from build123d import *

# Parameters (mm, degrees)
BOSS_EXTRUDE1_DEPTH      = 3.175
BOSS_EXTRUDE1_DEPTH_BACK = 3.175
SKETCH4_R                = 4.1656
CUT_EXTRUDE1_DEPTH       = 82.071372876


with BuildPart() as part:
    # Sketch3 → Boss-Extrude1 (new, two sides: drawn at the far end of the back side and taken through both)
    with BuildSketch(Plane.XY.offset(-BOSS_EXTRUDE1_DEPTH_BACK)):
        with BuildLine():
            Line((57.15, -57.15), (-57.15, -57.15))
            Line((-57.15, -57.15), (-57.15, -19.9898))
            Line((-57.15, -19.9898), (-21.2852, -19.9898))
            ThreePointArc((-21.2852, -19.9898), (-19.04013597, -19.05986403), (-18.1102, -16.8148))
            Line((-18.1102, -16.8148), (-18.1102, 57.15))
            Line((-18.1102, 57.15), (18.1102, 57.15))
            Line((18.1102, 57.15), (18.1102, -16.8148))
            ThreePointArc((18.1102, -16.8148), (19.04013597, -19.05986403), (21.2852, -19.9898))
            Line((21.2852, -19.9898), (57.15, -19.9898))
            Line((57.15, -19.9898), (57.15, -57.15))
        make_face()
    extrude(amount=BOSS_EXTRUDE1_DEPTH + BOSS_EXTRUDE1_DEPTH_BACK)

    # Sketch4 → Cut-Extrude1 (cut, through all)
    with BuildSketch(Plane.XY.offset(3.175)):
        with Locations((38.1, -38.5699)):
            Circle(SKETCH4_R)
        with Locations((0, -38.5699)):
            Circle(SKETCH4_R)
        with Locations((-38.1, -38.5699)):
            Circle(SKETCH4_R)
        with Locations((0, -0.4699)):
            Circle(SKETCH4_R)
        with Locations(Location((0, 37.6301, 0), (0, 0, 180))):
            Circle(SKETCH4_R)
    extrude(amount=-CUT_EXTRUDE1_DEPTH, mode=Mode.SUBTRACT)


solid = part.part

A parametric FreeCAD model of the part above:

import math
import FreeCAD as App
import Part
import Sketcher
from FreeCAD import Vector
Q = App.Units.Quantity

doc = App.newDocument("Part")
body = doc.addObject("PartDesign::Body", "Body")

# Sketch on XY plane
sketch1 = doc.addObject("Sketcher::SketchObject", "Sketch")
body.addObject(sketch1)
sketch1.AttachmentSupport = (doc.XY_Plane, [""])
sketch1.MapMode = "FlatFace"
sketch1.addGeometry([
    Part.LineSegment(Vector(-57.1, -57.1, 0), Vector(57.1, -57.1, 0)),  # 0
    Part.LineSegment(Vector(57.1, -57.1, 0), Vector(57.1, -20, 0)),  # 1
    Part.LineSegment(Vector(57.1, -20, 0), Vector(21.3, -20, 0)),  # 2
    Part.ArcOfCircle(Part.Circle(Vector(21.3, -16.8, 0), Vector(0, 0, 1), 3.2), math.radians(-180), math.radians(-90)),  # 3
    Part.LineSegment(Vector(18.1, -16.8, 0), Vector(18.1, 57.1, 0)),  # 4
    Part.LineSegment(Vector(18.1, 57.1, 0), Vector(-18.1, 57.1, 0)),  # 5
    Part.LineSegment(Vector(-18.1, 57.1, 0), Vector(-18.1, -16.8, 0)),  # 6
    Part.ArcOfCircle(Part.Circle(Vector(-21.3, -16.8, 0), Vector(0, 0, 1), 3.2), math.radians(-90), math.radians(0)),  # 7
    Part.LineSegment(Vector(-21.3, -20, 0), Vector(-57.1, -20, 0)),  # 8
    Part.LineSegment(Vector(-57.1, -20, 0), Vector(-57.1, -57.1, 0)),  # 9
], False)
sketch1.addConstraint([
    Sketcher.Constraint("Coincident", 0, 2, 1, 1),
    Sketcher.Constraint("Coincident", 1, 2, 2, 1),
    Sketcher.Constraint("Tangent", 2, 2, 3, 2),
    Sketcher.Constraint("Tangent", 3, 1, 4, 1),
    Sketcher.Constraint("Coincident", 4, 2, 5, 1),
    Sketcher.Constraint("Coincident", 5, 2, 6, 1),
    Sketcher.Constraint("Tangent", 6, 2, 7, 2),
    Sketcher.Constraint("Tangent", 7, 1, 8, 1),
    Sketcher.Constraint("Coincident", 8, 2, 9, 1),
    Sketcher.Constraint("Coincident", 9, 2, 0, 1),
    Sketcher.Constraint("Horizontal", 0),
    Sketcher.Constraint("Vertical", 1),
    Sketcher.Constraint("Horizontal", 2),
    Sketcher.Constraint("Vertical", 4),
    Sketcher.Constraint("Horizontal", 5),
    Sketcher.Constraint("Vertical", 6),
    Sketcher.Constraint("Horizontal", 8),
    Sketcher.Constraint("Vertical", 9),
    Sketcher.Constraint("Equal", 3, 7),
    Sketcher.Constraint("Symmetric", 3, 3, 7, 3, -2),
    Sketcher.Constraint("Equal", 2, 8),
    Sketcher.Constraint("DistanceX", 0, 1, 0, 2, Q("4.5 in")),
    Sketcher.Constraint("Radius", 3, Q("0.125 in")),
    Sketcher.Constraint("DistanceX", 2, 2, 2, 1, Q("1.412 in")),
    Sketcher.Constraint("DistanceY", 1, 1, 1, 2, Q("1.463 in")),
    Sketcher.Constraint("DistanceY", 4, 1, 4, 2, Q("2.912 in")),
    Sketcher.Constraint("DistanceY", 0, 2, -1, 1, Q("2.25 in")),
])
pad1 = doc.addObject("PartDesign::Pad", "Pad")
body.addObject(pad1)
pad1.Profile = sketch1
pad1.Type = "TwoLengths"
pad1.Length = Q("0.125 in")
pad1.Length2 = Q("0.125 in")

# Sketch on XY plane
sketch2 = doc.addObject("Sketcher::SketchObject", "Sketch001")
body.addObject(sketch2)
sketch2.AttachmentSupport = (doc.XY_Plane, [""])
sketch2.MapMode = "FlatFace"
sketch2.AttachmentOffset = App.Placement(Vector(0, 0, 0.125 * 25.4), App.Rotation())
sketch2.addGeometry([
    Part.Circle(Vector(38.1, -38.6, 0), Vector(0, 0, 1), 4.2),  # 0
    Part.Circle(Vector(0, -38.6, 0), Vector(0, 0, 1), 4.2),  # 1
    Part.Circle(Vector(-38.1, -38.6, 0), Vector(0, 0, 1), 4.2),  # 2
    Part.Circle(Vector(0, -0.5, 0), Vector(0, 0, 1), 4.2),  # 3
    Part.Circle(Vector(0, 37.6, 0), Vector(0, 0, 1), 4.2),  # 4
], False)
sketch2.addConstraint([
    Sketcher.Constraint("Equal", 0, 1),
    Sketcher.Constraint("Equal", 1, 2),
    Sketcher.Constraint("Equal", 2, 3),
    Sketcher.Constraint("Equal", 3, 4),
    Sketcher.Constraint("Symmetric", 0, 3, 2, 3, -2),
    Sketcher.Constraint("PointOnObject", 1, 3, -2),
    Sketcher.Constraint("PointOnObject", 3, 3, -2),
    Sketcher.Constraint("PointOnObject", 4, 3, -2),
    Sketcher.Constraint("Horizontal", 0, 3, 1, 3),
    Sketcher.Constraint("Diameter", 0, Q("0.328 in")),
    Sketcher.Constraint("DistanceX", 2, 3, 0, 3, Q("3 in")),
    Sketcher.Constraint("DistanceY", 1, 3, 4, 3, Q("3 in")),
    Sketcher.Constraint("DistanceY", 1, 3, 3, 3, Q("1.5 in")),
    Sketcher.Constraint("DistanceY", 0, 3, -1, 1, Q("1.5185 in")),
])
pocket1 = doc.addObject("PartDesign::Pocket", "Pocket")
body.addObject(pocket1)
pocket1.Profile = sketch2
pocket1.Type = "ThroughAll"

doc.recompute()
